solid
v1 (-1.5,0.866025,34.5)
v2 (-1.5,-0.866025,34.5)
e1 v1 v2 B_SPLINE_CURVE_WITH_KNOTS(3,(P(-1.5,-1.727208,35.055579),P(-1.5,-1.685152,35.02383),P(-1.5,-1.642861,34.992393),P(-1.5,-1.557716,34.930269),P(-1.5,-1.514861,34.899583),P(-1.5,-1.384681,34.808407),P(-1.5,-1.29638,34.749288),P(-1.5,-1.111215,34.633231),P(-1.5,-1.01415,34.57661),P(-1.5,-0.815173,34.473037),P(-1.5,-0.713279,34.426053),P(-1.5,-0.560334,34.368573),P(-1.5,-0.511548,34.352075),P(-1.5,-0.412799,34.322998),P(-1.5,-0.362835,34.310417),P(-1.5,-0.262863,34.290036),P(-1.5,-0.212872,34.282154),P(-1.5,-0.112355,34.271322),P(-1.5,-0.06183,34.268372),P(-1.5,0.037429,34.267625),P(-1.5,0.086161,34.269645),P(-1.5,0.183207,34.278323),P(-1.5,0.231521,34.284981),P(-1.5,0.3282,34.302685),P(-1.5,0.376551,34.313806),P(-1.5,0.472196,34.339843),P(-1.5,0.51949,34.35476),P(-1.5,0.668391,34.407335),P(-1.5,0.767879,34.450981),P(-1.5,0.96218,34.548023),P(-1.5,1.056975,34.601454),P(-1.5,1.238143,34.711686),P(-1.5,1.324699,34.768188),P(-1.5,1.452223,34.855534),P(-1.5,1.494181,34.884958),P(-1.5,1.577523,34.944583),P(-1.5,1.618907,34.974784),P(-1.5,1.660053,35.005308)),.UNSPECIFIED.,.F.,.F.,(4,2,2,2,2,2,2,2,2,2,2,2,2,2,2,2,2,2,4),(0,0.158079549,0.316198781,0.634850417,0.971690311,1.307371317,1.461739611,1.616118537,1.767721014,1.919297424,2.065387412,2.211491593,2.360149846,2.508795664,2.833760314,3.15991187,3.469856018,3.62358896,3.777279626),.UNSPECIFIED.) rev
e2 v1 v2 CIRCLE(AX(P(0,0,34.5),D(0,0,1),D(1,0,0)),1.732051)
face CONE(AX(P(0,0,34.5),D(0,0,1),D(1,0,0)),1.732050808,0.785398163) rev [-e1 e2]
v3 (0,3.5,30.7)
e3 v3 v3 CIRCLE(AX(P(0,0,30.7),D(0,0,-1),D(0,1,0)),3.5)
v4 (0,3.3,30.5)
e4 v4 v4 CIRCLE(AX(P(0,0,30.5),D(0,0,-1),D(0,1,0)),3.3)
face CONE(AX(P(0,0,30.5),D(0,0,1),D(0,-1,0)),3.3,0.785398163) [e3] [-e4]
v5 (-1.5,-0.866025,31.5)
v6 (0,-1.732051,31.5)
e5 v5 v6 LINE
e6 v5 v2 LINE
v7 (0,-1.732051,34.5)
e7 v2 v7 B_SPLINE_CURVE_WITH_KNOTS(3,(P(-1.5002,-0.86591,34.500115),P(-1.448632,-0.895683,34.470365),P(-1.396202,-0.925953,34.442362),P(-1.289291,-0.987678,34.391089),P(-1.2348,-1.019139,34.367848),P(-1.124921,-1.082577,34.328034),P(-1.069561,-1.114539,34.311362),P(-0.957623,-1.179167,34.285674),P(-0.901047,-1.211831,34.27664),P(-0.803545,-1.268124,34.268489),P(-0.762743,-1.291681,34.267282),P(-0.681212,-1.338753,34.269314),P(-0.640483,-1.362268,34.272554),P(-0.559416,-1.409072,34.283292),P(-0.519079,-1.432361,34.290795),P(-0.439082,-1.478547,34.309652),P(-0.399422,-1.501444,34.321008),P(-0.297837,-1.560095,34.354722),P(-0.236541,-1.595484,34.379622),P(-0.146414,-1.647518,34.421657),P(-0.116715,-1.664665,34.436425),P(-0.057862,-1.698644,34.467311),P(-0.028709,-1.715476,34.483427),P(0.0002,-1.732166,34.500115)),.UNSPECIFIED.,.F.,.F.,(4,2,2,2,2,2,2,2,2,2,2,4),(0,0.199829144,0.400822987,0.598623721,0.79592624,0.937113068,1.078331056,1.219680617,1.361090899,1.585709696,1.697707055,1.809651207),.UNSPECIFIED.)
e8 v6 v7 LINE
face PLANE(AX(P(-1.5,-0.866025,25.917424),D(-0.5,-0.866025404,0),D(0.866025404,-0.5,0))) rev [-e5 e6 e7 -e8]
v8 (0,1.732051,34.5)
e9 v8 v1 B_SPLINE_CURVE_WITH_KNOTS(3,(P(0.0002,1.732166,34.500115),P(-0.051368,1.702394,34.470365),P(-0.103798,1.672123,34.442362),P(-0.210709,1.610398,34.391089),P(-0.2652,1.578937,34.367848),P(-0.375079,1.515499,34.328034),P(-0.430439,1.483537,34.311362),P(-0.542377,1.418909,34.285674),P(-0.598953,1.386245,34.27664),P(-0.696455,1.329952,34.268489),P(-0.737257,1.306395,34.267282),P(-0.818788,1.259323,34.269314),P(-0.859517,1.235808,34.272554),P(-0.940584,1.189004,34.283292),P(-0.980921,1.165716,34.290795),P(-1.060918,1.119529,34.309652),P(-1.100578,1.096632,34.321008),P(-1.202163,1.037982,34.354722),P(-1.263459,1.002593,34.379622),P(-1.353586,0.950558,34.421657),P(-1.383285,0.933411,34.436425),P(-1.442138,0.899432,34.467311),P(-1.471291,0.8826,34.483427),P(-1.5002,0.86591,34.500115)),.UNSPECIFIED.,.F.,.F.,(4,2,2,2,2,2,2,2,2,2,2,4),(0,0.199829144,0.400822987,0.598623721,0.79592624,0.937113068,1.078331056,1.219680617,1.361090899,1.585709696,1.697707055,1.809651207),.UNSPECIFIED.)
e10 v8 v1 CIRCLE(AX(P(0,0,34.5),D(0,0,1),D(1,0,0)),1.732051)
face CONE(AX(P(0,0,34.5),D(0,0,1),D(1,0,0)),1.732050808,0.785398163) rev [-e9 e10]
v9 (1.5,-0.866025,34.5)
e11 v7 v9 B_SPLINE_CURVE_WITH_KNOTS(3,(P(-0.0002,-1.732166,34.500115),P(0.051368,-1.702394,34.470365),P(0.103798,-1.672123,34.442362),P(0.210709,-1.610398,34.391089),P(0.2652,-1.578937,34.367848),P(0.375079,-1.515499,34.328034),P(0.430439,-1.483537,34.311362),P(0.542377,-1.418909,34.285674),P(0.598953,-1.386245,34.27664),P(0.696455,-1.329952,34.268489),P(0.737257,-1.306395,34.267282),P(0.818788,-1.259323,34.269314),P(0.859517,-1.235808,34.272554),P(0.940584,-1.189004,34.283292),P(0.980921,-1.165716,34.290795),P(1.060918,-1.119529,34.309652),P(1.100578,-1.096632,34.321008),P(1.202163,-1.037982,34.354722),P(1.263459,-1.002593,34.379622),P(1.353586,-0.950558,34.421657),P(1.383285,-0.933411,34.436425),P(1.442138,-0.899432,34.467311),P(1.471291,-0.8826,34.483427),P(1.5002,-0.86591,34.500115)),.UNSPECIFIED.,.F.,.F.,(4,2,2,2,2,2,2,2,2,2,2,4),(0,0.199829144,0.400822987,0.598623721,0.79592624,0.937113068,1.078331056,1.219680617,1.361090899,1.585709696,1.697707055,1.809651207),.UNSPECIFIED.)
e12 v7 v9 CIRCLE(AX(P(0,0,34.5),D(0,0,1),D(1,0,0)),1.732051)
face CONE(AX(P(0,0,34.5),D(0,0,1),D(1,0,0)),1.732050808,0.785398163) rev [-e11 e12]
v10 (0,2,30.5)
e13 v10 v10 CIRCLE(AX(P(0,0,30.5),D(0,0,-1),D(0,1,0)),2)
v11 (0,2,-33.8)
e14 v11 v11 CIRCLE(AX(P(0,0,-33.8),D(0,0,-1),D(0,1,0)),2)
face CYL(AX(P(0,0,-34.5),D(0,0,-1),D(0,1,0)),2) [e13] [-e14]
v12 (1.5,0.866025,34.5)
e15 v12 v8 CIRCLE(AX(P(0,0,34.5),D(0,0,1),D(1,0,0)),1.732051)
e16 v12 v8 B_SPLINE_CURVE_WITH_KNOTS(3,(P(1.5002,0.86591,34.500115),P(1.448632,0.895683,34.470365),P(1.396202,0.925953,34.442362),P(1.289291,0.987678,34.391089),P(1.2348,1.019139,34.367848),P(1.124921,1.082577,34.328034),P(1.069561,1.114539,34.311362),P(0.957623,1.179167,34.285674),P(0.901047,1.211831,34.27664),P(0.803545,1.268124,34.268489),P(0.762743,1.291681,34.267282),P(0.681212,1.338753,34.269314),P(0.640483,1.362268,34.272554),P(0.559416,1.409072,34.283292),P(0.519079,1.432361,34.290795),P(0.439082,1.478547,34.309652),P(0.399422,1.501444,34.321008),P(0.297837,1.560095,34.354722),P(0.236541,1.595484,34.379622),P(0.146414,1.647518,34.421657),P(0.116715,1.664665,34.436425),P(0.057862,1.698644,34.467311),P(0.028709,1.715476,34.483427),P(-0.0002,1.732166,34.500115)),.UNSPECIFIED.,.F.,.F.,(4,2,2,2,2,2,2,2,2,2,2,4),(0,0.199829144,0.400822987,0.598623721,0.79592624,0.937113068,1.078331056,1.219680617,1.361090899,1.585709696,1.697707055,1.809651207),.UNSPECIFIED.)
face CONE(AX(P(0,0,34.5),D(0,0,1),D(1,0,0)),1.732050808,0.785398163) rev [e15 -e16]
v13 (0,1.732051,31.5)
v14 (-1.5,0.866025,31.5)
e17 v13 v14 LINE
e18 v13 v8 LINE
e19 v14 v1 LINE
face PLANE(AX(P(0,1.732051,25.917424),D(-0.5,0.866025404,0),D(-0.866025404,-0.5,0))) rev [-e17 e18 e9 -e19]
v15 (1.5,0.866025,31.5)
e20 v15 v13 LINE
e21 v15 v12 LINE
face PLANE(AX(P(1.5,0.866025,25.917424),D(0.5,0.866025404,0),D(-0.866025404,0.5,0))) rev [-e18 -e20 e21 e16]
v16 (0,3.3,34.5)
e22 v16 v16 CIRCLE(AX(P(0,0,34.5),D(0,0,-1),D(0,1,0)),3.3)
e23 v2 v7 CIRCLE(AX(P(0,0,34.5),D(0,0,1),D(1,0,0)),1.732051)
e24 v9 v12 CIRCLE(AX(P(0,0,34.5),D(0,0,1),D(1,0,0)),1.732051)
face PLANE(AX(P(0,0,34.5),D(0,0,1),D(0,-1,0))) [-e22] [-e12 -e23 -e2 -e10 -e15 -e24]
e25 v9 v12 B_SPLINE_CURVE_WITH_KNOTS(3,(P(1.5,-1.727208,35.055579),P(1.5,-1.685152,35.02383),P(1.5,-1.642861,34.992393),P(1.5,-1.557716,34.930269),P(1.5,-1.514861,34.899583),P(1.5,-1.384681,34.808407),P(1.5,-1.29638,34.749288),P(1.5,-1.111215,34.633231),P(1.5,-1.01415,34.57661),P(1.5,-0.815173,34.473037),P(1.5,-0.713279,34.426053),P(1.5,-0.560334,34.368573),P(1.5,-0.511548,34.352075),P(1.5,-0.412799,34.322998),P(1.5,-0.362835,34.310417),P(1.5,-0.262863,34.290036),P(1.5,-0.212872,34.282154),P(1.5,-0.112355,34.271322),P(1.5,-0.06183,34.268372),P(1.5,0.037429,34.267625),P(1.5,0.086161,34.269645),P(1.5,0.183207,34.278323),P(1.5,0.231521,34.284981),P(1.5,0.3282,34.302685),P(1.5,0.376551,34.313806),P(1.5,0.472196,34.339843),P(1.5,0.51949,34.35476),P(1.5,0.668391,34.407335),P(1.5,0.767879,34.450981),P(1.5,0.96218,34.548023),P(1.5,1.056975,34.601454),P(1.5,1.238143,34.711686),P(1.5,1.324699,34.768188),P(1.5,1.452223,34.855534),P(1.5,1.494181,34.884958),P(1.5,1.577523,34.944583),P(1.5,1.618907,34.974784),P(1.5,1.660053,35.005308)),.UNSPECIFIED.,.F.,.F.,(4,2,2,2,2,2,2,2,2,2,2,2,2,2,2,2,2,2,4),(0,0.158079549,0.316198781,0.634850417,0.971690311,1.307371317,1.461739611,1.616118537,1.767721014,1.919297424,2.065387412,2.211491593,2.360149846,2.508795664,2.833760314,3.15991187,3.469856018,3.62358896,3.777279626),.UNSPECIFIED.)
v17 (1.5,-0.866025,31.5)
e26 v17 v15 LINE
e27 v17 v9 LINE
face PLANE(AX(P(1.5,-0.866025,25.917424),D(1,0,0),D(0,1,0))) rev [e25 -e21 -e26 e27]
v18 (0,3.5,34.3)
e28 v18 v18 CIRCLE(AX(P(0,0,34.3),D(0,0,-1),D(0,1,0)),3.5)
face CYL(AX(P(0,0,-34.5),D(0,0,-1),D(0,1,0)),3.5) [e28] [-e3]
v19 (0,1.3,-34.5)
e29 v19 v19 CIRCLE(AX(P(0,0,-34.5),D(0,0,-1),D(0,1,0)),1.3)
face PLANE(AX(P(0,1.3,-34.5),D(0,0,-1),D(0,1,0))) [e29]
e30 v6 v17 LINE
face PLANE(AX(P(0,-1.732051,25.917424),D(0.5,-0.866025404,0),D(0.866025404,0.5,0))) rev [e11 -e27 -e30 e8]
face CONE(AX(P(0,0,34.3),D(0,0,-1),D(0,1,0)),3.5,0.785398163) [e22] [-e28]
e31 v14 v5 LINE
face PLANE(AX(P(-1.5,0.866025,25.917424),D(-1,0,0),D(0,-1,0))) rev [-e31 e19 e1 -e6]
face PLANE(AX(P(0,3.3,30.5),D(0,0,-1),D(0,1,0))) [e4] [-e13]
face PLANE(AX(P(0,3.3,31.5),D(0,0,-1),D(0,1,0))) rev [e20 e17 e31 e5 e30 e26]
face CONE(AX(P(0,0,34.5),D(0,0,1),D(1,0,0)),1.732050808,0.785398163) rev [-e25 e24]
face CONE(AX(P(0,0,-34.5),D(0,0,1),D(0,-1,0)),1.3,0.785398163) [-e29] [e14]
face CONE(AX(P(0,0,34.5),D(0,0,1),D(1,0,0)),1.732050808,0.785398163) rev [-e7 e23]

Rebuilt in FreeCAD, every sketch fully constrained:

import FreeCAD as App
import Part
import Sketcher
Q = App.Units.Quantity


def faces_at(feature, points):
    """Names of the faces that lie closest to the given points."""
    faces = feature.Shape.Faces
    near = lambda p: min(range(len(faces)), key=lambda i: faces[i].distToShape(Part.Vertex(*p))[0])
    return sorted({f"Face{near(p) + 1}" for p in points})


def add_polygon(sketch, points):
    """Adds a closed chain of lines whose ends are joined by coincident constraints."""
    first, n = sketch.GeometryCount, len(points)
    for a, b in zip(points, points[1:] + points[:1]):
        sketch.addGeometry(Part.LineSegment(App.Vector(*a, 0), App.Vector(*b, 0)), False)
    for i in range(n):
        sketch.addConstraint(Sketcher.Constraint("Coincident", first + i, 2, first + (i + 1) % n, 1))

doc = App.newDocument("Part")
body = doc.addObject("PartDesign::Body", "Body")

sketch1 = body.newObject("Sketcher::SketchObject", "Sketch")
sketch1.AttachmentSupport = (doc.getObject("YZ_Plane"), [""])
sketch1.MapMode = "FlatFace"
add_polygon(sketch1, [(3.3, 34.5), (0, 34.5), (0, -34.5), (1.3, -34.5), (2, -33.8), (2, 30.5), (3.3, 30.5), (3.5, 30.7), (3.5, 34.3)])
sketch1.addConstraint([
    Sketcher.Constraint("Horizontal", 0),
    Sketcher.Constraint("Vertical", 1),
    Sketcher.Constraint("Horizontal", 2),
    Sketcher.Constraint("Vertical", 4),
    Sketcher.Constraint("Horizontal", 5),
    Sketcher.Constraint("Vertical", 7),
    Sketcher.Constraint("Symmetric", 0, 2, 1, 2, -1, 1),
    Sketcher.Constraint("Parallel", 3, 6),
    Sketcher.Constraint("Perpendicular", 6, 8),
    Sketcher.Constraint("Vertical", 5, 2, 8, 2),
    Sketcher.Constraint("Equal", 2, 5),
    Sketcher.Constraint("Equal", 6, 8),
    Sketcher.Constraint("DistanceY", 1, 2, 1, 1, 69.0),
    Sketcher.Constraint("DistanceX", 0, 2, 0, 1, 3.3),
    Sketcher.Constraint("DistanceX", 2, 1, 2, 2, 1.3),
    Sketcher.Constraint("DistanceY", 4, 1, 4, 2, 64.3),
    Sketcher.Constraint("DistanceY", 7, 1, 7, 2, 3.6),
])
revolution = body.newObject("PartDesign::Revolution", "Revolution")
revolution.Profile = sketch1
revolution.ReferenceAxis = (sketch1, ["V_Axis"])
revolution.Angle = 360

sketch2 = body.newObject("Sketcher::SketchObject", "Sketch001")
sketch2.AttachmentSupport = (doc.getObject("XY_Plane"), [""])
sketch2.MapMode = "FlatFace"
sketch2.AttachmentOffset = App.Placement(App.Vector(0, 0, 34.5), App.Rotation())
add_polygon(sketch2, [(1.5, -0.9), (1.5, 0.9), (0, 1.7), (-1.5, 0.9), (-1.5, -0.9), (0, -1.7)])
sketch2.addConstraint([
    Sketcher.Constraint("Vertical", 0),
    Sketcher.Constraint("Vertical", 3),
    Sketcher.Constraint("Symmetric", 0, 2, 3, 2, -1, 1),
    Sketcher.Constraint("Symmetric", 1, 2, 4, 2, -1, 1),
    Sketcher.Constraint("PointOnObject", 1, 2, -2),
    Sketcher.Constraint("Parallel", 2, 5),
    Sketcher.Constraint("Horizontal", 0, 2, 2, 2),
    Sketcher.Constraint("Angle", 1, Q("150 deg")),
    Sketcher.Constraint("DistanceX", 2, 2, 0, 2, 3.0),
    Sketcher.Constraint("DistanceY", 0, 1, 0, 2, 1.732051),
])
pocket1 = body.newObject("PartDesign::Pocket", "Pocket")
pocket1.Profile = sketch2
pocket1.Length = 3
body2 = doc.addObject("PartDesign::Body", "Body001")

sketch3 = body2.newObject("Sketcher::SketchObject", "Sketch002")
sketch3.AttachmentSupport = (doc.getObject("XY_Plane001"), [""])
sketch3.MapMode = "FlatFace"
sketch3.AttachmentOffset = App.Placement(App.Vector(0, 0, 34.5), App.Rotation())
sketch3.addGeometry(Part.Circle(App.Vector(0, 0, 0), App.Vector(0, 0, 1), 1.7), False)
sketch3.addConstraint([
    Sketcher.Constraint("Coincident", 0, 3, -1, 1),
    Sketcher.Constraint("Diameter", 0, 3.464102),
])
pad1 = body2.newObject("PartDesign::Pad", "Pad")
pad1.Profile = sketch3
pad1.Length = 3
pad1.Reversed = True
doc.recompute()

datumplane = body2.newObject("PartDesign::Plane", "DatumPlane")
datumplane.AttachmentSupport = (doc.getObject("XY_Plane001"), [""])
datumplane.MapMode = "FlatFace"
datumplane.AttachmentOffset = App.Placement(App.Vector(0, 0, 34.5), App.Rotation())
draft = body2.newObject("PartDesign::Draft", "Draft")
draft.Base = (pad1, faces_at(pad1, [(-1.732, 0, 33)]))
draft.NeutralPlane = (datumplane, [""])
draft.Angle = 45
draft.Reversed = True
doc.recompute()

boolean = body.newObject("PartDesign::Boolean", "Boolean")
boolean.Type = "Cut"
boolean.addObjects([body2])

doc.recompute()
